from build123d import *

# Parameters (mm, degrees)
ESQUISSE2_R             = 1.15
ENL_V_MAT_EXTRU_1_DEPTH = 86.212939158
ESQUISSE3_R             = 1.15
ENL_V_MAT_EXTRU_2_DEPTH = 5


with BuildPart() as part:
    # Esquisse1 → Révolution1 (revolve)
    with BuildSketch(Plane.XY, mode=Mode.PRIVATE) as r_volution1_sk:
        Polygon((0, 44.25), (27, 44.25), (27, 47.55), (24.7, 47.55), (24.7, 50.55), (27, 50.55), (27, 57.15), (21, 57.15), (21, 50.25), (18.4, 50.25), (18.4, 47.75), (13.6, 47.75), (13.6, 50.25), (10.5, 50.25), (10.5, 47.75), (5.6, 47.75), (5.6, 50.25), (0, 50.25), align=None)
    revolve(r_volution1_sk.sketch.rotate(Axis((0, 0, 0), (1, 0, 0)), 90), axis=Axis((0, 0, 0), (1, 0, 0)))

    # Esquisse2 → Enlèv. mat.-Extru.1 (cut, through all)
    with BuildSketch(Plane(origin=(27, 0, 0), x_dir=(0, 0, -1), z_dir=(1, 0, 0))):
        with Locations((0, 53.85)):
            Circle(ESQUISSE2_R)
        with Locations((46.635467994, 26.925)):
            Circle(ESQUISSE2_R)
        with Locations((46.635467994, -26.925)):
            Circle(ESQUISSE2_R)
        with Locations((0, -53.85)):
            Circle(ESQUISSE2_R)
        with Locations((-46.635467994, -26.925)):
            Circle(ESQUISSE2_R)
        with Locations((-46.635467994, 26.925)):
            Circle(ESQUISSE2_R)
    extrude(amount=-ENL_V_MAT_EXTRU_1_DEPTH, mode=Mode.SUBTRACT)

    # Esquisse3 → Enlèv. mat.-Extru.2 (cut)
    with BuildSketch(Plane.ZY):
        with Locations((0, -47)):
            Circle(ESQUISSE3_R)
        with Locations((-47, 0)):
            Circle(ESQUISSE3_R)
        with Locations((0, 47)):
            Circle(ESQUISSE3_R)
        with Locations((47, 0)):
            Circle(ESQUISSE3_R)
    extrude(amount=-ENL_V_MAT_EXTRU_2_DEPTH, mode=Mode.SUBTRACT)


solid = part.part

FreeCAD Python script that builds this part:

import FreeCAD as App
import Part
import Sketcher

doc = App.newDocument("Part")
body = doc.addObject("PartDesign::Body", "Body")

# Sketch on XY plane
sketch1 = body.newObject("Sketcher::SketchObject", "Sketch")
sketch1.AttachmentSupport = (doc.getObject("XY_Plane"), [""])
sketch1.MapMode = "FlatFace"
sketch1.addGeometry(Part.LineSegment(App.Vector(0, 44.25, 0), App.Vector(27, 44.25, 0)), False)
sketch1.addGeometry(Part.LineSegment(App.Vector(27, 44.25, 0), App.Vector(27, 47.55, 0)), False)
sketch1.addGeometry(Part.LineSegment(App.Vector(27, 47.55, 0), App.Vector(24.7, 47.55, 0)), False)
sketch1.addGeometry(Part.LineSegment(App.Vector(24.7, 47.55, 0), App.Vector(24.7, 50.55, 0)), False)
sketch1.addGeometry(Part.LineSegment(App.Vector(24.7, 50.55, 0), App.Vector(27, 50.55, 0)), False)
sketch1.addGeometry(Part.LineSegment(App.Vector(27, 50.55, 0), App.Vector(27, 57.15, 0)), False)
sketch1.addGeometry(Part.LineSegment(App.Vector(27, 57.15, 0), App.Vector(21, 57.15, 0)), False)
sketch1.addGeometry(Part.LineSegment(App.Vector(21, 57.15, 0), App.Vector(21, 50.25, 0)), False)
sketch1.addGeometry(Part.LineSegment(App.Vector(21, 50.25, 0), App.Vector(18.4, 50.25, 0)), False)
sketch1.addGeometry(Part.LineSegment(App.Vector(18.4, 50.25, 0), App.Vector(18.4, 47.75, 0)), False)
sketch1.addGeometry(Part.LineSegment(App.Vector(18.4, 47.75, 0), App.Vector(13.6, 47.75, 0)), False)
sketch1.addGeometry(Part.LineSegment(App.Vector(13.6, 47.75, 0), App.Vector(13.6, 50.25, 0)), False)
sketch1.addGeometry(Part.LineSegment(App.Vector(13.6, 50.25, 0), App.Vector(10.5, 50.25, 0)), False)
sketch1.addGeometry(Part.LineSegment(App.Vector(10.5, 50.25, 0), App.Vector(10.5, 47.75, 0)), False)
sketch1.addGeometry(Part.LineSegment(App.Vector(10.5, 47.75, 0), App.Vector(5.6, 47.75, 0)), False)
sketch1.addGeometry(Part.LineSegment(App.Vector(5.6, 47.75, 0), App.Vector(5.6, 50.25, 0)), False)
sketch1.addGeometry(Part.LineSegment(App.Vector(5.6, 50.25, 0), App.Vector(0, 50.25, 0)), False)
sketch1.addGeometry(Part.LineSegment(App.Vector(0, 50.25, 0), App.Vector(0, 44.25, 0)), False)
sketch1.addConstraint(Sketcher.Constraint("Coincident", 0, 2, 1, 1))
sketch1.addConstraint(Sketcher.Constraint("Coincident", 1, 2, 2, 1))
sketch1.addConstraint(Sketcher.Constraint("Coincident", 2, 2, 3, 1))
sketch1.addConstraint(Sketcher.Constraint("Coincident", 3, 2, 4, 1))
sketch1.addConstraint(Sketcher.Constraint("Coincident", 4, 2, 5, 1))
sketch1.addConstraint(Sketcher.Constraint("Coincident", 5, 2, 6, 1))
sketch1.addConstraint(Sketcher.Constraint("Coincident", 6, 2, 7, 1))
sketch1.addConstraint(Sketcher.Constraint("Coincident", 7, 2, 8, 1))
sketch1.addConstraint(Sketcher.Constraint("Coincident", 8, 2, 9, 1))
sketch1.addConstraint(Sketcher.Constraint("Coincident", 9, 2, 10, 1))
sketch1.addConstraint(Sketcher.Constraint("Coincident", 10, 2, 11, 1))
sketch1.addConstraint(Sketcher.Constraint("Coincident", 11, 2, 12, 1))
sketch1.addConstraint(Sketcher.Constraint("Coincident", 12, 2, 13, 1))
sketch1.addConstraint(Sketcher.Constraint("Coincident", 13, 2, 14, 1))
sketch1.addConstraint(Sketcher.Constraint("Coincident", 14, 2, 15, 1))
sketch1.addConstraint(Sketcher.Constraint("Coincident", 15, 2, 16, 1))
sketch1.addConstraint(Sketcher.Constraint("Coincident", 16, 2, 17, 1))
sketch1.addConstraint(Sketcher.Constraint("Coincident", 17, 2, 0, 1))
sketch1.addConstraint(Sketcher.Constraint("Horizontal", 0))
sketch1.addConstraint(Sketcher.Constraint("Vertical", 1))
sketch1.addConstraint(Sketcher.Constraint("Horizontal", 2))
sketch1.addConstraint(Sketcher.Constraint("Vertical", 3))
sketch1.addConstraint(Sketcher.Constraint("Horizontal", 4))
sketch1.addConstraint(Sketcher.Constraint("Vertical", 5))
sketch1.addConstraint(Sketcher.Constraint("Horizontal", 6))
sketch1.addConstraint(Sketcher.Constraint("Vertical", 7))
sketch1.addConstraint(Sketcher.Constraint("Horizontal", 8))
sketch1.addConstraint(Sketcher.Constraint("Vertical", 9))
sketch1.addConstraint(Sketcher.Constraint("Horizontal", 10))
sketch1.addConstraint(Sketcher.Constraint("Vertical", 11))
sketch1.addConstraint(Sketcher.Constraint("Horizontal", 12))
sketch1.addConstraint(Sketcher.Constraint("Vertical", 13))
sketch1.addConstraint(Sketcher.Constraint("Horizontal", 14))
sketch1.addConstraint(Sketcher.Constraint("Vertical", 15))
sketch1.addConstraint(Sketcher.Constraint("Horizontal", 16))
sketch1.addConstraint(Sketcher.Constraint("Vertical", 17))
sketch1.addConstraint(Sketcher.Constraint("PointOnObject", 16, 2, -2))
sketch1.addConstraint(Sketcher.Constraint("Horizontal", 8, 2, 11, 2))
sketch1.addConstraint(Sketcher.Constraint("Horizontal", 10, 2, 13, 2))
sketch1.addConstraint(Sketcher.Constraint("Horizontal", 12, 2, 15, 2))
sketch1.addConstraint(Sketcher.Constraint("Vertical", 1, 2, 4, 2))
sketch1.addConstraint(Sketcher.Constraint("Equal", 6, 17))
sketch1.addConstraint(Sketcher.Constraint("DistanceX", 0, 1, 0, 2, 27.0))
sketch1.addConstraint(Sketcher.Constraint("DistanceX", 6, 2, 6, 1, 6.0))
sketch1.addConstraint(Sketcher.Constraint("DistanceY", 3, 1, 3, 2, 3.0))
sketch1.addConstraint(Sketcher.Constraint("DistanceX", 2, 2, 2, 1, 2.3))
sketch1.addConstraint(Sketcher.Constraint("DistanceX", 8, 2, 8, 1, 2.6))
sketch1.addConstraint(Sketcher.Constraint("DistanceX", 10, 2, 10, 1, 4.8))
sketch1.addConstraint(Sketcher.Constraint("DistanceX", 12, 2, 12, 1, 3.1))
sketch1.addConstraint(Sketcher.Constraint("DistanceX", 14, 2, 14, 1, 4.9))
sketch1.addConstraint(Sketcher.Constraint("DistanceY", 1, 1, 1, 2, 3.3))
sketch1.addConstraint(Sketcher.Constraint("DistanceY", 5, 1, 5, 2, 6.6))
sketch1.addConstraint(Sketcher.Constraint("DistanceY", 9, 2, 9, 1, 2.5))
sketch1.addConstraint(Sketcher.Constraint("DistanceY", -1, 1, 0, 2, 44.25))
revolution = body.newObject("PartDesign::Revolution", "Revolution")
revolution.Profile = sketch1
revolution.ReferenceAxis = (sketch1, ["H_Axis"])
revolution.Angle = 360

# Sketch on YZ plane
sketch2 = body.newObject("Sketcher::SketchObject", "Sketch001")
sketch2.AttachmentSupport = (doc.getObject("YZ_Plane"), [""])
sketch2.MapMode = "FlatFace"
sketch2.AttachmentOffset = App.Placement(App.Vector(0, 0, 27), App.Rotation())
sketch2.addGeometry(Part.Circle(App.Vector(53.85, 0, 0), App.Vector(0, 0, 1), 1.15), False)
sketch2.addGeometry(Part.Circle(App.Vector(26.925, -46.635468, 0), App.Vector(0, 0, 1), 1.15), False)
sketch2.addGeometry(Part.Circle(App.Vector(-26.925, -46.635468, 0), App.Vector(0, 0, 1), 1.15), False)
sketch2.addGeometry(Part.Circle(App.Vector(-53.85, 0, 0), App.Vector(0, 0, 1), 1.15), False)
sketch2.addGeometry(Part.Circle(App.Vector(-26.925, 46.635468, 0), App.Vector(0, 0, 1), 1.15), False)
sketch2.addGeometry(Part.Circle(App.Vector(26.925, 46.635468, 0), App.Vector(0, 0, 1), 1.15), False)
sketch2.addConstraint(Sketcher.Constraint("Equal", 0, 1))
sketch2.addConstraint(Sketcher.Constraint("Equal", 1, 2))
sketch2.addConstraint(Sketcher.Constraint("Equal", 2, 3))
sketch2.addConstraint(Sketcher.Constraint("Equal", 3, 4))
sketch2.addConstraint(Sketcher.Constraint("Equal", 4, 5))
sketch2.addConstraint(Sketcher.Constraint("Symmetric", 0, 3, 3, 3, -1, 1))
sketch2.addConstraint(Sketcher.Constraint("Symmetric", 1, 3, 4, 3, -1, 1))
sketch2.addConstraint(Sketcher.Constraint("Symmetric", 2, 3, 5, 3, -1, 1))
sketch2.addConstraint(Sketcher.Constraint("Symmetric", 1, 3, 2, 3, -2))
sketch2.addConstraint(Sketcher.Constraint("PointOnObject", 0, 3, -1))
sketch2.addConstraint(Sketcher.Constraint("Diameter", 0, 2.3))
sketch2.addConstraint(Sketcher.Constraint("DistanceX", 3, 3, 0, 3, 107.7))
sketch2.addConstraint(Sketcher.Constraint("DistanceX", 2, 3, 1, 3, 53.85))
sketch2.addConstraint(Sketcher.Constraint("DistanceY", 1, 3, -1, 1, 46.635468))
pocket1 = body.newObject("PartDesign::Pocket", "Pocket")
pocket1.Profile = sketch2
pocket1.Type = "ThroughAll"

# Sketch on YZ plane
sketch3 = body.newObject("Sketcher::SketchObject", "Sketch002")
sketch3.AttachmentSupport = (doc.getObject("YZ_Plane"), [""])
sketch3.MapMode = "FlatFace"
sketch3.addGeometry(Part.Circle(App.Vector(-47, 0, 0), App.Vector(0, 0, 1), 1.15), False)
sketch3.addGeometry(Part.Circle(App.Vector(0, -47, 0), App.Vector(0, 0, 1), 1.15), False)
sketch3.addGeometry(Part.Circle(App.Vector(47, 0, 0), App.Vector(0, 0, 1), 1.15), False)
sketch3.addGeometry(Part.Circle(App.Vector(0, 47, 0), App.Vector(0, 0, 1), 1.15), False)
sketch3.addConstraint(Sketcher.Constraint("Equal", 0, 1))
sketch3.addConstraint(Sketcher.Constraint("Equal", 1, 2))
sketch3.addConstraint(Sketcher.Constraint("Equal", 2, 3))
sketch3.addConstraint(Sketcher.Constraint("Symmetric", 0, 3, 2, 3, -1, 1))
sketch3.addConstraint(Sketcher.Constraint("Symmetric", 1, 3, 3, 3, -1, 1))
sketch3.addConstraint(Sketcher.Constraint("PointOnObject", 0, 3, -1))
sketch3.addConstraint(Sketcher.Constraint("PointOnObject", 1, 3, -2))
sketch3.addConstraint(Sketcher.Constraint("Diameter", 0, 2.3))
sketch3.addConstraint(Sketcher.Constraint("DistanceX", 0, 3, -1, 1, 47.0))
sketch3.addConstraint(Sketcher.Constraint("DistanceY", 1, 3, -1, 1, 47.0))
pocket2 = body.newObject("PartDesign::Pocket", "Pocket001")
pocket2.Profile = sketch3
pocket2.Length = 5
pocket2.Reversed = True

doc.recompute()
